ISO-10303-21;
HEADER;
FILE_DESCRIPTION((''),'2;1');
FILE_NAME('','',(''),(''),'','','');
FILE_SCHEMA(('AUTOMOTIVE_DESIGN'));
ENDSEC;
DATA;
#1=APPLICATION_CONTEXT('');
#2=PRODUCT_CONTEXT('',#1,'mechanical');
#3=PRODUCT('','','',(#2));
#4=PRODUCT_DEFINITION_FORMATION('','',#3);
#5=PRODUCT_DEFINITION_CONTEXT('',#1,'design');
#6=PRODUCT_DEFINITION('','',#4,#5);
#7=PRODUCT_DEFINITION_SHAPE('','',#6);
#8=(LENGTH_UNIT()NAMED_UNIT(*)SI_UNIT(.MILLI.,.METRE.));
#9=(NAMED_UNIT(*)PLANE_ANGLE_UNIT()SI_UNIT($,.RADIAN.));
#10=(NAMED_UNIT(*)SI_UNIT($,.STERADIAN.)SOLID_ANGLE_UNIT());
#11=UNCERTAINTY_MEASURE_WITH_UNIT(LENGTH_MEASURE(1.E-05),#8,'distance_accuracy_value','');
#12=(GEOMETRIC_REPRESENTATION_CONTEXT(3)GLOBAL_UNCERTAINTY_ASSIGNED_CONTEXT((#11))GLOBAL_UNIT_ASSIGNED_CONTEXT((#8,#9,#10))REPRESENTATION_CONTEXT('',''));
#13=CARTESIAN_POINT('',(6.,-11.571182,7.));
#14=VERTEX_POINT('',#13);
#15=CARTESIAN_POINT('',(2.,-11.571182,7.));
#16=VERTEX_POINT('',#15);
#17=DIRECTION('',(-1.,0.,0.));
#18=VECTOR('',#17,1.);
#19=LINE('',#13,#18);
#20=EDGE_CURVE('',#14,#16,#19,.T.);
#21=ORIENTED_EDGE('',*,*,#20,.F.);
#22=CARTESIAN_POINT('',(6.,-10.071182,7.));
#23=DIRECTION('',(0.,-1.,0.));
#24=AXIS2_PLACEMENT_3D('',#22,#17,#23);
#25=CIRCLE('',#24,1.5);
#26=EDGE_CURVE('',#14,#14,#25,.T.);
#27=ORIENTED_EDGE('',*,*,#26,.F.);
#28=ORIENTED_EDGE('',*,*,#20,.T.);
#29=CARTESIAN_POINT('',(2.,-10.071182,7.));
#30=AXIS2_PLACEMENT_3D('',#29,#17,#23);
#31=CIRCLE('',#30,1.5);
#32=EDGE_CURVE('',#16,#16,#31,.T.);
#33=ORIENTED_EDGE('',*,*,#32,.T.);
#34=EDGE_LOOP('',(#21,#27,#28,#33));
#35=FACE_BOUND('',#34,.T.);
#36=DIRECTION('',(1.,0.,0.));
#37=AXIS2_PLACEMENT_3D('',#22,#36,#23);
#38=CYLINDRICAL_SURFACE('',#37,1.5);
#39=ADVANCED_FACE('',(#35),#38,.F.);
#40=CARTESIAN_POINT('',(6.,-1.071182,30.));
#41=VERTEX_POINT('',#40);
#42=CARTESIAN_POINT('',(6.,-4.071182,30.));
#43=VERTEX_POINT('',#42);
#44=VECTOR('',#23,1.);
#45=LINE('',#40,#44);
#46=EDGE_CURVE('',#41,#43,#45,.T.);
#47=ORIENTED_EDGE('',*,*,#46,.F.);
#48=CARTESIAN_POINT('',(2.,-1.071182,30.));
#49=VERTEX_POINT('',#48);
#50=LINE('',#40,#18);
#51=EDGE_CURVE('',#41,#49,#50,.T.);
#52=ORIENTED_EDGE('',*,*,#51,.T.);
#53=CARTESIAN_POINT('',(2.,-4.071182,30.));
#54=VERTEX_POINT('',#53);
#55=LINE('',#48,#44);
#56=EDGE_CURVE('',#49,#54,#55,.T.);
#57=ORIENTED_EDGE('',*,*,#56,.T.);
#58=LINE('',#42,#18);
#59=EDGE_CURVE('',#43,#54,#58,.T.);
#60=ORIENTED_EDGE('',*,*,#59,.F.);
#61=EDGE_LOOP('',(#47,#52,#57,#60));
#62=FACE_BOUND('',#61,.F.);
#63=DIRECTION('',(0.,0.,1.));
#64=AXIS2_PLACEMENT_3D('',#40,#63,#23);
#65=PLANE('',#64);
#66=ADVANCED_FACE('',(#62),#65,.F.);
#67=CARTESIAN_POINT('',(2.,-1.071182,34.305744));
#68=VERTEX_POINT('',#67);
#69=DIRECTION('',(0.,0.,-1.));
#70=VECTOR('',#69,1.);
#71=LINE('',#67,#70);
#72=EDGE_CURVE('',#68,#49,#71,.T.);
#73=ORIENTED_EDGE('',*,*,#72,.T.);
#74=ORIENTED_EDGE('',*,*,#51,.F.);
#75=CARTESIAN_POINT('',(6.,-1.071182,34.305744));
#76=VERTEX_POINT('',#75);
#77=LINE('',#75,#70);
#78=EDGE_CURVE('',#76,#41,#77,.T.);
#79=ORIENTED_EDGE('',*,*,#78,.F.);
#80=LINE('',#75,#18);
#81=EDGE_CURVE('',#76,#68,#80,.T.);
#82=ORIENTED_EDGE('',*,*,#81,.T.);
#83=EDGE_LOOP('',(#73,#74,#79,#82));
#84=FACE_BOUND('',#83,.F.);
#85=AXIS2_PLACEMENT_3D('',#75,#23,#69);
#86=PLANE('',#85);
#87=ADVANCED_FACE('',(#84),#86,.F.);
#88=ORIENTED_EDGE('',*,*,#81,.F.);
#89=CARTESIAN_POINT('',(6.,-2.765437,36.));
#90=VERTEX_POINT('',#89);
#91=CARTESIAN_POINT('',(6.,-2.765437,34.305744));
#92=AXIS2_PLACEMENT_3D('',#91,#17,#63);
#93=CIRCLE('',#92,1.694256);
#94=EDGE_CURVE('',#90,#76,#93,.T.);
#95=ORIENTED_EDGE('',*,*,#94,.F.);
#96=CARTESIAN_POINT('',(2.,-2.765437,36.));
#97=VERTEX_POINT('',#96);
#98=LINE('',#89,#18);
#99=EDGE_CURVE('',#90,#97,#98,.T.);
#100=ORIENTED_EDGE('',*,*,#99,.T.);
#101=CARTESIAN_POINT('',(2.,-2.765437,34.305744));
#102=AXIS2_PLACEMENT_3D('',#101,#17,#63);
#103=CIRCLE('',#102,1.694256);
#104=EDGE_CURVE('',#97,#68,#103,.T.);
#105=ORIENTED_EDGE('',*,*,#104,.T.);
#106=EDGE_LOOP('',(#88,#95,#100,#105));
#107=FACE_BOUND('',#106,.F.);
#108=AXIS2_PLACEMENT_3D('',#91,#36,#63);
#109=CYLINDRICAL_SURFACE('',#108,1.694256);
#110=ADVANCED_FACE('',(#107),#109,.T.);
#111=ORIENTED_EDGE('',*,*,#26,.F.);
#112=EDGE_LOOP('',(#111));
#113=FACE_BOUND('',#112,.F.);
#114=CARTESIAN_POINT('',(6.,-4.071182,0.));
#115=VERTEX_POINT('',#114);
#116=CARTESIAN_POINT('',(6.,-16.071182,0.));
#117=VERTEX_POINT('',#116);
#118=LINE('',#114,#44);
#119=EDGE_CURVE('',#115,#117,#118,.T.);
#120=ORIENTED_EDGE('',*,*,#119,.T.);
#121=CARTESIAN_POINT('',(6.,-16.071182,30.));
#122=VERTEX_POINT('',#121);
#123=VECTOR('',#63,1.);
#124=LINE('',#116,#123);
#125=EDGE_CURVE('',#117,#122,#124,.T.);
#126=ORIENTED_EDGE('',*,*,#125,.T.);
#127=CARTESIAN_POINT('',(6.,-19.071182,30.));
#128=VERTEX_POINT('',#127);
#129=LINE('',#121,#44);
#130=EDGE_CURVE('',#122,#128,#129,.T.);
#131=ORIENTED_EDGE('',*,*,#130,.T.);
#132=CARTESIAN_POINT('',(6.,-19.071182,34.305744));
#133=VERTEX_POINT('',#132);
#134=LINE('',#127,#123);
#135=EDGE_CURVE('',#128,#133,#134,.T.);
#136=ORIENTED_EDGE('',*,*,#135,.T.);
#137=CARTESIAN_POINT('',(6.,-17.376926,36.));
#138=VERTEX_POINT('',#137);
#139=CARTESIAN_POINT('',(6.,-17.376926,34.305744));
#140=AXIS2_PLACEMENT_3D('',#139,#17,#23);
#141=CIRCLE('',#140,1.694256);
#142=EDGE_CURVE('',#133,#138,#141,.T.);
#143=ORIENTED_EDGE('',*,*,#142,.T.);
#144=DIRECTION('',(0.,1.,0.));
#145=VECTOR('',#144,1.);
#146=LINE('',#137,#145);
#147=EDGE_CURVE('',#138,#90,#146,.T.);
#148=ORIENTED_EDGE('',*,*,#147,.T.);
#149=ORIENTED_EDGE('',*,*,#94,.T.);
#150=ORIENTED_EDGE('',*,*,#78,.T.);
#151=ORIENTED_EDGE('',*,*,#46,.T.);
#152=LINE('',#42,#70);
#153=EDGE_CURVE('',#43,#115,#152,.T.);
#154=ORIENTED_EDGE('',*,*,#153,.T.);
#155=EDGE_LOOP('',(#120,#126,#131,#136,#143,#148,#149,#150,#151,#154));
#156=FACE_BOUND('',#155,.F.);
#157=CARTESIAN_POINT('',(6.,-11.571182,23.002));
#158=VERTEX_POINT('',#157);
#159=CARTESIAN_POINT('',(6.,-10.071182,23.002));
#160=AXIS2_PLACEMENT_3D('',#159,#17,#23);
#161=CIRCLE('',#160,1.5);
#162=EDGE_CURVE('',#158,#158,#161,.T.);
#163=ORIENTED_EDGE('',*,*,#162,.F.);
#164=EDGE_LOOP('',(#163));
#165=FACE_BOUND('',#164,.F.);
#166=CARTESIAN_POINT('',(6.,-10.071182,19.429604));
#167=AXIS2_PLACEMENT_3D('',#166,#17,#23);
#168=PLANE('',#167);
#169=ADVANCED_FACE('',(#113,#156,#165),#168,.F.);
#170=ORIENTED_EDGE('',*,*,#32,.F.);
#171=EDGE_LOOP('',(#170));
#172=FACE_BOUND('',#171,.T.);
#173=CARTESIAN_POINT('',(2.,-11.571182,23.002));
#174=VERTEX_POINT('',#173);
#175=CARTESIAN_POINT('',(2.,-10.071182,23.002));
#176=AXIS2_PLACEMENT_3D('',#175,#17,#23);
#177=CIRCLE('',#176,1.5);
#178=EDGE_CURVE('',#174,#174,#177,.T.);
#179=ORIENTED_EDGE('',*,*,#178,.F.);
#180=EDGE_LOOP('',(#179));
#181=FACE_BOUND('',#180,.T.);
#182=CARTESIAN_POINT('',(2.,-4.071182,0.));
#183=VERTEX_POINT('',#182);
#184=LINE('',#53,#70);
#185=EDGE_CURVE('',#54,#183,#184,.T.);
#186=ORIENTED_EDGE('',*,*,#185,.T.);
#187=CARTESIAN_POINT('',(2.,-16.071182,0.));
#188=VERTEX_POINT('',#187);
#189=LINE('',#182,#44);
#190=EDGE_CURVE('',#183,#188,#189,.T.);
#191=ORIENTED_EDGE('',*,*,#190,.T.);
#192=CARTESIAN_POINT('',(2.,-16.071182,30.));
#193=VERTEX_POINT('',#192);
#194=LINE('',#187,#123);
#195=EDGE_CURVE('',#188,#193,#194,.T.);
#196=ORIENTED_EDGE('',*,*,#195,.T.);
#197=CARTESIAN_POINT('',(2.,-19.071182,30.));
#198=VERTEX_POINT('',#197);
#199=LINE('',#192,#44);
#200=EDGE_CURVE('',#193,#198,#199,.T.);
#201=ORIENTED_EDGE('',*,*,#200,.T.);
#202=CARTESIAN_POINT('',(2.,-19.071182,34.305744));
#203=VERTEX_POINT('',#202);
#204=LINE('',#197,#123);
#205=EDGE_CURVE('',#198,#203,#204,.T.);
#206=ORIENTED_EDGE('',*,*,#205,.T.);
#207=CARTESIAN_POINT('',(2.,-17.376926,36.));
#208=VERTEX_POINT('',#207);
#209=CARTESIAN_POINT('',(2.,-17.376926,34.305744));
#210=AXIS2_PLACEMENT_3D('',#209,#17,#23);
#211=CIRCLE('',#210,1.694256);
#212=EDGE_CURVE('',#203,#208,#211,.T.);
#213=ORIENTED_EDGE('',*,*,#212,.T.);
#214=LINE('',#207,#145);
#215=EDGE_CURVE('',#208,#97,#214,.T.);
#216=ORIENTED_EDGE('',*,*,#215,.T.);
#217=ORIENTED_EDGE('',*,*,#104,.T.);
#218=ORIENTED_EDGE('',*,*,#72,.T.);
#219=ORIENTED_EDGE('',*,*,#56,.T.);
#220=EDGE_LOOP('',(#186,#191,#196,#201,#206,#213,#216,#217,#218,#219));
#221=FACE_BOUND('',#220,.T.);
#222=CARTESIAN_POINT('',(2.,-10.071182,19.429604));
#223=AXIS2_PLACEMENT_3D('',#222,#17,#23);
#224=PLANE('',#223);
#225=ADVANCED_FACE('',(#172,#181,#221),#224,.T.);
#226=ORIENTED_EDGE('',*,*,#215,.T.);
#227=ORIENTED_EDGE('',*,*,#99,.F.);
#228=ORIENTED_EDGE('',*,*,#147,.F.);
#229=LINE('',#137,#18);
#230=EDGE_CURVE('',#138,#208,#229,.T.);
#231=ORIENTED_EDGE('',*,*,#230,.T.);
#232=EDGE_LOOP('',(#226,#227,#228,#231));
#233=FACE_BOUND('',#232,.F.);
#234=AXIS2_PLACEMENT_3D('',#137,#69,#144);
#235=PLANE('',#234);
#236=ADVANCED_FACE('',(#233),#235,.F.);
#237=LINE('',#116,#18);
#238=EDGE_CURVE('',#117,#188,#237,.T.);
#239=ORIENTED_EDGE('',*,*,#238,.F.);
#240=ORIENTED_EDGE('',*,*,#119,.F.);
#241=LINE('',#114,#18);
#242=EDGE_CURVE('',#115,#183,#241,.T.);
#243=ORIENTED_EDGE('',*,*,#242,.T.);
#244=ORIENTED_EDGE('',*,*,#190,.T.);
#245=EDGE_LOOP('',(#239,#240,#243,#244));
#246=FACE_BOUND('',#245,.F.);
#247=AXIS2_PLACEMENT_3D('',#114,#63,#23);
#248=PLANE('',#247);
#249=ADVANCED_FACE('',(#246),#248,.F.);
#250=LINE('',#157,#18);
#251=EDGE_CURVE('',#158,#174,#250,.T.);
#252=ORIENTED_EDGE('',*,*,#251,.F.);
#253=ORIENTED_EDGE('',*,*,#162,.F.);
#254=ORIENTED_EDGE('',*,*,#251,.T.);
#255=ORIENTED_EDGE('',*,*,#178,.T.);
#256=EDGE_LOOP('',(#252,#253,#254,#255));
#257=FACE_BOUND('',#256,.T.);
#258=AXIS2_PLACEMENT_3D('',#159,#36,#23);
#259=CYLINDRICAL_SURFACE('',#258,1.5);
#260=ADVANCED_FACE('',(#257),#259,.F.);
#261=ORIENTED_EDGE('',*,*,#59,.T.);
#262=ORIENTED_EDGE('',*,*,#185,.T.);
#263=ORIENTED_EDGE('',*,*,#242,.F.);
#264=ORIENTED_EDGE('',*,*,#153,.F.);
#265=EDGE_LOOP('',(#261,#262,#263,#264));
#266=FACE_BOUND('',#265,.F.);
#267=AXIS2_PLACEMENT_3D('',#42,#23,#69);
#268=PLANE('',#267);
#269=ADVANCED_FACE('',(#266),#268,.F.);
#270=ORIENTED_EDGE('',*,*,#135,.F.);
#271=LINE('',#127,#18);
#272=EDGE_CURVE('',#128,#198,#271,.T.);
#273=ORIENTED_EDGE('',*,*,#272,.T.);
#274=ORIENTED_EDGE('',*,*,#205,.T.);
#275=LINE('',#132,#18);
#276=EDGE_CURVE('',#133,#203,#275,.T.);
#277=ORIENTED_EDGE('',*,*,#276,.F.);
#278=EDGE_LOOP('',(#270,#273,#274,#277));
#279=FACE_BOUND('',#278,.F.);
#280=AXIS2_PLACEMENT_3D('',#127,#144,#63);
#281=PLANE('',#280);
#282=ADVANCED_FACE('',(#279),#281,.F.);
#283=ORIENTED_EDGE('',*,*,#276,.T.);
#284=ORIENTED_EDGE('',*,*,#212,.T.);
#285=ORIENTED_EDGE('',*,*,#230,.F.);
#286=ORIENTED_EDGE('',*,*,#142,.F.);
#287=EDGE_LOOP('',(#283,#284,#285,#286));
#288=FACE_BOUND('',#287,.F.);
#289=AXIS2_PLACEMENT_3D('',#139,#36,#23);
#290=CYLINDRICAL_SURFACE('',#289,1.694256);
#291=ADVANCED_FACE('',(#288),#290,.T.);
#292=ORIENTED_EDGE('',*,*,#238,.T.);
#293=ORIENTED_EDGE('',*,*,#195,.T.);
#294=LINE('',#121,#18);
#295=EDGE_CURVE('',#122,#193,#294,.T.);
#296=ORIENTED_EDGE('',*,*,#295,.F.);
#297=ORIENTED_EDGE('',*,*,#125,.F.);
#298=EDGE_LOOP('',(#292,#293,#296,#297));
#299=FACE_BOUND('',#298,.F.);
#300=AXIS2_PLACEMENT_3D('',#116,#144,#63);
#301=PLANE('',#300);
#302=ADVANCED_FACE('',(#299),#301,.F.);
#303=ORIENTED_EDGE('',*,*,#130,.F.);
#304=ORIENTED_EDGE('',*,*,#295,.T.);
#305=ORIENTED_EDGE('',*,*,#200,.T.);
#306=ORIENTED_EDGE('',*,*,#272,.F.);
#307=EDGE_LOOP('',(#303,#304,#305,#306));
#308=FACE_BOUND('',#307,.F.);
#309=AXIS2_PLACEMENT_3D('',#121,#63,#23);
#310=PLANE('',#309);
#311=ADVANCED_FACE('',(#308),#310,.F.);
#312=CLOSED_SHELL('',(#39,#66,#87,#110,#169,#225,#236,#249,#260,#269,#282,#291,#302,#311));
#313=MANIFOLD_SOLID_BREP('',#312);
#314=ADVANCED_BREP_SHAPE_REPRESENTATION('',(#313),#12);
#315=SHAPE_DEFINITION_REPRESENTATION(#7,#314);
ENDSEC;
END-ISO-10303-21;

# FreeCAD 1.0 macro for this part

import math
import FreeCAD as App
import Part
import Sketcher

V = App.Vector

doc = App.newDocument("Part")
body = doc.addObject("PartDesign::Body", "Body")

sketch1 = doc.addObject("Sketcher::SketchObject", "Sketch")
body.addObject(sketch1)
sketch1.AttachmentSupport = (doc.XY_Plane, [""])
sketch1.MapMode = "FlatFace"
sketch1.addGeometry([
    Part.LineSegment(V(-6, 13.9, 0), V(-6, -16.1, 0)),
    Part.LineSegment(V(-6, -16.1, 0), V(6, -16.1, 0)),
    Part.LineSegment(V(6, -16.1, 0), V(6, 13.9, 0)),
    Part.LineSegment(V(6, 13.9, 0), V(9, 13.9, 0)),
    Part.LineSegment(V(9, 13.9, 0), V(9, 18.2, 0)),
    Part.ArcOfCircle(Part.Circle(V(7.3, 18.2, 0), V(0, 0, 1), 1.7), math.radians(0), math.radians(90)),
    Part.LineSegment(V(7.3, 19.9, 0), V(-7.3, 19.9, 0)),
    Part.ArcOfCircle(Part.Circle(V(-7.3, 18.2, 0), V(0, 0, 1), 1.7), math.radians(90), math.radians(180)),
    Part.LineSegment(V(-9, 18.2, 0), V(-9, 13.9, 0)),
    Part.LineSegment(V(-9, 13.9, 0), V(-6, 13.9, 0)),
    Part.Circle(V(0, -9.1, 0), V(0, 0, 1), 1.5),
    Part.Circle(V(0, 6.9, 0), V(0, 0, 1), 1.5),
], False)
sketch1.addConstraint([
    Sketcher.Constraint("Coincident", 0, 2, 1, 1),
    Sketcher.Constraint("Coincident", 1, 2, 2, 1),
    Sketcher.Constraint("Coincident", 2, 2, 3, 1),
    Sketcher.Constraint("Coincident", 3, 2, 4, 1),
    Sketcher.Constraint("Tangent", 4, 2, 5, 1),
    Sketcher.Constraint("Tangent", 5, 2, 6, 1),
    Sketcher.Constraint("Tangent", 6, 2, 7, 1),
    Sketcher.Constraint("Tangent", 7, 2, 8, 1),
    Sketcher.Constraint("Coincident", 8, 2, 9, 1),
    Sketcher.Constraint("Coincident", 9, 2, 0, 1),
    Sketcher.Constraint("Vertical", 0),
    Sketcher.Constraint("Horizontal", 1),
    Sketcher.Constraint("Vertical", 2),
    Sketcher.Constraint("Horizontal", 3),
    Sketcher.Constraint("Vertical", 4),
    Sketcher.Constraint("Horizontal", 6),
    Sketcher.Constraint("Vertical", 8),
    Sketcher.Constraint("Horizontal", 9),
    Sketcher.Constraint("Equal", 5, 7),
    Sketcher.Constraint("Equal", 10, 11),
    Sketcher.Constraint("Symmetric", 3, 2, 8, 2, -2),
    Sketcher.Constraint("PointOnObject", 10, 3, -2),
    Sketcher.Constraint("PointOnObject", 11, 3, -2),
    Sketcher.Constraint("Equal", 3, 9),
    Sketcher.Constraint("Diameter", 10, 3.0),
    Sketcher.Constraint("DistanceX", 1, 1, 1, 2, 12.0),
    Sketcher.Constraint("DistanceX", 3, 1, 3, 2, 3.0),
    Sketcher.Constraint("DistanceY", 0, 2, 0, 1, 30.0),
    Sketcher.Constraint("DistanceY", 0, 2, 10, 3, 7.0),
    Sketcher.Constraint("DistanceY", 2, 2, 5, 2, 6.0),
    Sketcher.Constraint("Radius", 5, 1.694256),
    Sketcher.Constraint("DistanceY", 10, 3, 11, 3, 16.002),
    Sketcher.Constraint("DistanceY", 10, 3, -1, 1, 9.071182),
])
pad1 = doc.addObject("PartDesign::Pad", "Pad")
body.addObject(pad1)
pad1.Profile = sketch1
pad1.Length = 4
body2 = doc.addObject("PartDesign::Body", "Body001")
doc.recompute()

body.Placement = App.Placement(V(0, -16.071182, 16.071182), App.Rotation(V(1, 0, 0), 90))
boolean = doc.addObject("PartDesign::Boolean", "Boolean")
body2.addObject(boolean)
boolean.Type = "Fuse"
boolean.addObjects([body])
body3 = doc.addObject("PartDesign::Body", "Body002")
doc.recompute()

body2.Placement = App.Placement(V(22.071182, -10.071182, 0), App.Rotation(V(0, 0, -1), 90))
boolean2 = doc.addObject("PartDesign::Boolean", "Boolean001")
body3.addObject(boolean2)
boolean2.Type = "Fuse"
boolean2.addObjects([body2])

doc.recompute()
